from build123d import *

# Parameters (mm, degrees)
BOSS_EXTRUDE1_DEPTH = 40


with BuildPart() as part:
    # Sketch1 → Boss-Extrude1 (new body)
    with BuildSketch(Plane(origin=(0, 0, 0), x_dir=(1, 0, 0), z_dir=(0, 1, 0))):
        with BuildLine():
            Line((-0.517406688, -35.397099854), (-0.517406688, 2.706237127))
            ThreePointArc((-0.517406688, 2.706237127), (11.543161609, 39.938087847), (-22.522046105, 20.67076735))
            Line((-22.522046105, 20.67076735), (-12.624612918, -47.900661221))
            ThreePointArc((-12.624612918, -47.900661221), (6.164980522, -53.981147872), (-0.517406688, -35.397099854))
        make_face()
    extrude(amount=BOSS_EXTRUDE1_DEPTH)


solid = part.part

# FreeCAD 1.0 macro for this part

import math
import FreeCAD as App
import Part
import Sketcher
from FreeCAD import Vector
Q = App.Units.Quantity

doc = App.newDocument("Part")
body = doc.addObject("PartDesign::Body", "Body")

# Sketch on XZ plane
sketch1 = body.newObject("Sketcher::SketchObject", "Sketch")
sketch1.AttachmentSupport = (doc.getObject("XZ_Plane"), [""])
sketch1.MapMode = "FlatFace"
sketch1.addGeometry(Part.LineSegment(Vector(-1, 35, 0), Vector(-1, -3, 0)), False)
sketch1.addGeometry(Part.ArcOfCircle(Part.Circle(Vector(-2, -24, 0), Vector(0, 0, 1), 21), math.radians(172), math.radians(447)), False)
sketch1.addGeometry(Part.LineSegment(Vector(-23, -21, 0), Vector(-13, 48, 0)), False)
sketch1.addGeometry(Part.ArcOfCircle(Part.Circle(Vector(-2, 46, 0), Vector(0, 0, 1), 11), math.radians(-84), math.radians(172)), False)
sketch1.addConstraint(Sketcher.Constraint("Coincident", 0, 2, 1, 2))
sketch1.addConstraint(Sketcher.Constraint("Tangent", 1, 1, 2, 1))
sketch1.addConstraint(Sketcher.Constraint("Tangent", 2, 2, 3, 2))
sketch1.addConstraint(Sketcher.Constraint("Coincident", 3, 1, 0, 1))
sketch1.addConstraint(Sketcher.Constraint("Vertical", 0))
sketch1.addConstraint(Sketcher.Constraint("Vertical", 1, 3, 3, 3))
sketch1.addConstraint(Sketcher.Constraint("Radius", 1, Q("21 mm")))
sketch1.addConstraint(Sketcher.Constraint("Radius", 3, Q("11 mm")))
sketch1.addConstraint(Sketcher.Constraint("DistanceY", 1, 3, 3, 3, Q("70 mm")))
sketch1.addConstraint(Sketcher.Constraint("DistanceY", -1, 1, 3, 1, Q("35.3971 mm")))
sketch1.addConstraint(Sketcher.Constraint("DistanceY", 0, 2, 2, 2, Q("50.606898 mm")))
sketch1.addConstraint(Sketcher.Constraint("DistanceX", 1, 3, -1, 1, Q("1.737436 mm")))
pad1 = body.newObject("PartDesign::Pad", "Pad")
pad1.Profile = sketch1
pad1.Length = 40
pad1.Reversed = True

doc.recompute()
